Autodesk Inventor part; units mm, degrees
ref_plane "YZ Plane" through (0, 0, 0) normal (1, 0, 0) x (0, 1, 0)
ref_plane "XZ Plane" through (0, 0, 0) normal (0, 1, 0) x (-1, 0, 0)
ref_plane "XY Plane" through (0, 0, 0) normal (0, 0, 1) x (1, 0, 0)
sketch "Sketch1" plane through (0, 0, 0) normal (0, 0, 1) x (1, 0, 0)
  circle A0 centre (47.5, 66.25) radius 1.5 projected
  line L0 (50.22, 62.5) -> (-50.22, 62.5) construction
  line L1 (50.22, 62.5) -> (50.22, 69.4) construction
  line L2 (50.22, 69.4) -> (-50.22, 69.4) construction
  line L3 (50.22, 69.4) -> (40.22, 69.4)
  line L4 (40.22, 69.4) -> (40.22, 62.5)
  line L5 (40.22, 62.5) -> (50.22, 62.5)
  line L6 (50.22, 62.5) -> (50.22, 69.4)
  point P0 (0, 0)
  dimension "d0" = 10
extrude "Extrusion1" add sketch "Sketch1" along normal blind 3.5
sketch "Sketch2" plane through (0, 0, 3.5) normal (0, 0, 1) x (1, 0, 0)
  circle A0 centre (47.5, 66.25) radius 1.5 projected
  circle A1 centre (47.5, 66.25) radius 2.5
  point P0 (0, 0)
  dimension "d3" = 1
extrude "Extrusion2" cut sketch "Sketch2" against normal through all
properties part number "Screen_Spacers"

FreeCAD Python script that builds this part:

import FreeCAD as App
import Part
import Sketcher

V = App.Vector
Q = App.Units.Quantity


def add_polygon(sketch, points):
    """Adds a closed chain of lines whose ends are joined by coincident constraints."""
    first, n = sketch.GeometryCount, len(points)
    for a, b in zip(points, points[1:] + points[:1]):
        sketch.addGeometry(Part.LineSegment(App.Vector(*a, 0), App.Vector(*b, 0)), False)
    for i in range(n):
        sketch.addConstraint(Sketcher.Constraint("Coincident", first + i, 2, first + (i + 1) % n, 1))

doc = App.newDocument("Part")
params = doc.addObject("Spreadsheet::Sheet", "Params")
for row, (alias, value) in enumerate([
    ("sketch1_width", "10 mm"),
    ("sketch1_diameter", "3 mm"),
    ("sketch1_height", "6.9 mm"),
    ("pad1_length", "3.5 mm"),
    ("sketch2_diameter", "5 mm"),
    ("sketch2_diameter2", "3 mm"),
], start=1):
    params.set(f"A{row}", alias)
    params.set(f"B{row}", "=" + value)
    params.setAlias(f"B{row}", alias)

body = doc.addObject("PartDesign::Body", "Body")

# Sketch on XY plane
sketch1 = body.newObject("Sketcher::SketchObject", "Sketch")
sketch1.AttachmentSupport = (doc.getObject("XY_Plane"), [""])
sketch1.MapMode = "FlatFace"
add_polygon(sketch1, [(50.2, 62.5), (50.2, 69.4), (40.2, 69.4), (40.2, 62.5)])  # lines 0-3
sketch1.addGeometry(Part.Circle(V(47.5, 66.2, 0), V(0, 0, 1), 1.5), False)  # 4
sketch1.addConstraint(Sketcher.Constraint("Vertical", 0))
sketch1.addConstraint(Sketcher.Constraint("Horizontal", 1))
sketch1.addConstraint(Sketcher.Constraint("Vertical", 2))
sketch1.addConstraint(Sketcher.Constraint("Horizontal", 3))
sketch1.addConstraint(Sketcher.Constraint("DistanceX", 1, 2, 1, 1, Q("10 mm")))
sketch1.addConstraint(Sketcher.Constraint("Diameter", 4, Q("3 mm")))
sketch1.addConstraint(Sketcher.Constraint("DistanceY", 0, 1, 0, 2, Q("6.9 mm")))
sketch1.addConstraint(Sketcher.Constraint("DistanceX", -1, 1, 4, 3, Q("47.5 mm")))
sketch1.addConstraint(Sketcher.Constraint("DistanceY", -1, 1, 0, 2, Q("69.4 mm")))
sketch1.addConstraint(Sketcher.Constraint("DistanceY", -1, 1, 4, 3, Q("66.25 mm")))
sketch1.addConstraint(Sketcher.Constraint("DistanceX", -1, 1, 0, 2, Q("50.22 mm")))
sketch1.setExpression("Constraints[8]", "Params.sketch1_width")
sketch1.setExpression("Constraints[9]", "Params.sketch1_diameter")
sketch1.setExpression("Constraints[10]", "Params.sketch1_height")
pad1 = body.newObject("PartDesign::Pad", "Pad")
pad1.Profile = sketch1
pad1.setExpression("Length", "Params.pad1_length")

# Sketch on XY plane
sketch2 = body.newObject("Sketcher::SketchObject", "Sketch001")
sketch2.AttachmentSupport = (doc.getObject("XY_Plane"), [""])
sketch2.MapMode = "FlatFace"
sketch2.AttachmentOffset = App.Placement(V(0, 0, 3.5), App.Rotation())
sketch2.addGeometry(Part.Circle(V(47.5, 66.2, 0), V(0, 0, 1), 2.5), False)
sketch2.addGeometry(Part.Circle(V(47.5, 66.2, 0), V(0, 0, 1), 1.5), False)
sketch2.addConstraint(Sketcher.Constraint("Coincident", 1, 3, 0, 3))
sketch2.addConstraint(Sketcher.Constraint("Diameter", 0, Q("5 mm")))
sketch2.addConstraint(Sketcher.Constraint("Diameter", 1, Q("3 mm")))
sketch2.addConstraint(Sketcher.Constraint("DistanceX", -1, 1, 0, 3, Q("47.5 mm")))
sketch2.addConstraint(Sketcher.Constraint("DistanceY", -1, 1, 0, 3, Q("66.25 mm")))
sketch2.setExpression("Constraints[1]", "Params.sketch2_diameter")
sketch2.setExpression("Constraints[2]", "Params.sketch2_diameter2")
pocket1 = body.newObject("PartDesign::Pocket", "Pocket")
pocket1.Profile = sketch2
pocket1.Type = "ThroughAll"

doc.recompute()
